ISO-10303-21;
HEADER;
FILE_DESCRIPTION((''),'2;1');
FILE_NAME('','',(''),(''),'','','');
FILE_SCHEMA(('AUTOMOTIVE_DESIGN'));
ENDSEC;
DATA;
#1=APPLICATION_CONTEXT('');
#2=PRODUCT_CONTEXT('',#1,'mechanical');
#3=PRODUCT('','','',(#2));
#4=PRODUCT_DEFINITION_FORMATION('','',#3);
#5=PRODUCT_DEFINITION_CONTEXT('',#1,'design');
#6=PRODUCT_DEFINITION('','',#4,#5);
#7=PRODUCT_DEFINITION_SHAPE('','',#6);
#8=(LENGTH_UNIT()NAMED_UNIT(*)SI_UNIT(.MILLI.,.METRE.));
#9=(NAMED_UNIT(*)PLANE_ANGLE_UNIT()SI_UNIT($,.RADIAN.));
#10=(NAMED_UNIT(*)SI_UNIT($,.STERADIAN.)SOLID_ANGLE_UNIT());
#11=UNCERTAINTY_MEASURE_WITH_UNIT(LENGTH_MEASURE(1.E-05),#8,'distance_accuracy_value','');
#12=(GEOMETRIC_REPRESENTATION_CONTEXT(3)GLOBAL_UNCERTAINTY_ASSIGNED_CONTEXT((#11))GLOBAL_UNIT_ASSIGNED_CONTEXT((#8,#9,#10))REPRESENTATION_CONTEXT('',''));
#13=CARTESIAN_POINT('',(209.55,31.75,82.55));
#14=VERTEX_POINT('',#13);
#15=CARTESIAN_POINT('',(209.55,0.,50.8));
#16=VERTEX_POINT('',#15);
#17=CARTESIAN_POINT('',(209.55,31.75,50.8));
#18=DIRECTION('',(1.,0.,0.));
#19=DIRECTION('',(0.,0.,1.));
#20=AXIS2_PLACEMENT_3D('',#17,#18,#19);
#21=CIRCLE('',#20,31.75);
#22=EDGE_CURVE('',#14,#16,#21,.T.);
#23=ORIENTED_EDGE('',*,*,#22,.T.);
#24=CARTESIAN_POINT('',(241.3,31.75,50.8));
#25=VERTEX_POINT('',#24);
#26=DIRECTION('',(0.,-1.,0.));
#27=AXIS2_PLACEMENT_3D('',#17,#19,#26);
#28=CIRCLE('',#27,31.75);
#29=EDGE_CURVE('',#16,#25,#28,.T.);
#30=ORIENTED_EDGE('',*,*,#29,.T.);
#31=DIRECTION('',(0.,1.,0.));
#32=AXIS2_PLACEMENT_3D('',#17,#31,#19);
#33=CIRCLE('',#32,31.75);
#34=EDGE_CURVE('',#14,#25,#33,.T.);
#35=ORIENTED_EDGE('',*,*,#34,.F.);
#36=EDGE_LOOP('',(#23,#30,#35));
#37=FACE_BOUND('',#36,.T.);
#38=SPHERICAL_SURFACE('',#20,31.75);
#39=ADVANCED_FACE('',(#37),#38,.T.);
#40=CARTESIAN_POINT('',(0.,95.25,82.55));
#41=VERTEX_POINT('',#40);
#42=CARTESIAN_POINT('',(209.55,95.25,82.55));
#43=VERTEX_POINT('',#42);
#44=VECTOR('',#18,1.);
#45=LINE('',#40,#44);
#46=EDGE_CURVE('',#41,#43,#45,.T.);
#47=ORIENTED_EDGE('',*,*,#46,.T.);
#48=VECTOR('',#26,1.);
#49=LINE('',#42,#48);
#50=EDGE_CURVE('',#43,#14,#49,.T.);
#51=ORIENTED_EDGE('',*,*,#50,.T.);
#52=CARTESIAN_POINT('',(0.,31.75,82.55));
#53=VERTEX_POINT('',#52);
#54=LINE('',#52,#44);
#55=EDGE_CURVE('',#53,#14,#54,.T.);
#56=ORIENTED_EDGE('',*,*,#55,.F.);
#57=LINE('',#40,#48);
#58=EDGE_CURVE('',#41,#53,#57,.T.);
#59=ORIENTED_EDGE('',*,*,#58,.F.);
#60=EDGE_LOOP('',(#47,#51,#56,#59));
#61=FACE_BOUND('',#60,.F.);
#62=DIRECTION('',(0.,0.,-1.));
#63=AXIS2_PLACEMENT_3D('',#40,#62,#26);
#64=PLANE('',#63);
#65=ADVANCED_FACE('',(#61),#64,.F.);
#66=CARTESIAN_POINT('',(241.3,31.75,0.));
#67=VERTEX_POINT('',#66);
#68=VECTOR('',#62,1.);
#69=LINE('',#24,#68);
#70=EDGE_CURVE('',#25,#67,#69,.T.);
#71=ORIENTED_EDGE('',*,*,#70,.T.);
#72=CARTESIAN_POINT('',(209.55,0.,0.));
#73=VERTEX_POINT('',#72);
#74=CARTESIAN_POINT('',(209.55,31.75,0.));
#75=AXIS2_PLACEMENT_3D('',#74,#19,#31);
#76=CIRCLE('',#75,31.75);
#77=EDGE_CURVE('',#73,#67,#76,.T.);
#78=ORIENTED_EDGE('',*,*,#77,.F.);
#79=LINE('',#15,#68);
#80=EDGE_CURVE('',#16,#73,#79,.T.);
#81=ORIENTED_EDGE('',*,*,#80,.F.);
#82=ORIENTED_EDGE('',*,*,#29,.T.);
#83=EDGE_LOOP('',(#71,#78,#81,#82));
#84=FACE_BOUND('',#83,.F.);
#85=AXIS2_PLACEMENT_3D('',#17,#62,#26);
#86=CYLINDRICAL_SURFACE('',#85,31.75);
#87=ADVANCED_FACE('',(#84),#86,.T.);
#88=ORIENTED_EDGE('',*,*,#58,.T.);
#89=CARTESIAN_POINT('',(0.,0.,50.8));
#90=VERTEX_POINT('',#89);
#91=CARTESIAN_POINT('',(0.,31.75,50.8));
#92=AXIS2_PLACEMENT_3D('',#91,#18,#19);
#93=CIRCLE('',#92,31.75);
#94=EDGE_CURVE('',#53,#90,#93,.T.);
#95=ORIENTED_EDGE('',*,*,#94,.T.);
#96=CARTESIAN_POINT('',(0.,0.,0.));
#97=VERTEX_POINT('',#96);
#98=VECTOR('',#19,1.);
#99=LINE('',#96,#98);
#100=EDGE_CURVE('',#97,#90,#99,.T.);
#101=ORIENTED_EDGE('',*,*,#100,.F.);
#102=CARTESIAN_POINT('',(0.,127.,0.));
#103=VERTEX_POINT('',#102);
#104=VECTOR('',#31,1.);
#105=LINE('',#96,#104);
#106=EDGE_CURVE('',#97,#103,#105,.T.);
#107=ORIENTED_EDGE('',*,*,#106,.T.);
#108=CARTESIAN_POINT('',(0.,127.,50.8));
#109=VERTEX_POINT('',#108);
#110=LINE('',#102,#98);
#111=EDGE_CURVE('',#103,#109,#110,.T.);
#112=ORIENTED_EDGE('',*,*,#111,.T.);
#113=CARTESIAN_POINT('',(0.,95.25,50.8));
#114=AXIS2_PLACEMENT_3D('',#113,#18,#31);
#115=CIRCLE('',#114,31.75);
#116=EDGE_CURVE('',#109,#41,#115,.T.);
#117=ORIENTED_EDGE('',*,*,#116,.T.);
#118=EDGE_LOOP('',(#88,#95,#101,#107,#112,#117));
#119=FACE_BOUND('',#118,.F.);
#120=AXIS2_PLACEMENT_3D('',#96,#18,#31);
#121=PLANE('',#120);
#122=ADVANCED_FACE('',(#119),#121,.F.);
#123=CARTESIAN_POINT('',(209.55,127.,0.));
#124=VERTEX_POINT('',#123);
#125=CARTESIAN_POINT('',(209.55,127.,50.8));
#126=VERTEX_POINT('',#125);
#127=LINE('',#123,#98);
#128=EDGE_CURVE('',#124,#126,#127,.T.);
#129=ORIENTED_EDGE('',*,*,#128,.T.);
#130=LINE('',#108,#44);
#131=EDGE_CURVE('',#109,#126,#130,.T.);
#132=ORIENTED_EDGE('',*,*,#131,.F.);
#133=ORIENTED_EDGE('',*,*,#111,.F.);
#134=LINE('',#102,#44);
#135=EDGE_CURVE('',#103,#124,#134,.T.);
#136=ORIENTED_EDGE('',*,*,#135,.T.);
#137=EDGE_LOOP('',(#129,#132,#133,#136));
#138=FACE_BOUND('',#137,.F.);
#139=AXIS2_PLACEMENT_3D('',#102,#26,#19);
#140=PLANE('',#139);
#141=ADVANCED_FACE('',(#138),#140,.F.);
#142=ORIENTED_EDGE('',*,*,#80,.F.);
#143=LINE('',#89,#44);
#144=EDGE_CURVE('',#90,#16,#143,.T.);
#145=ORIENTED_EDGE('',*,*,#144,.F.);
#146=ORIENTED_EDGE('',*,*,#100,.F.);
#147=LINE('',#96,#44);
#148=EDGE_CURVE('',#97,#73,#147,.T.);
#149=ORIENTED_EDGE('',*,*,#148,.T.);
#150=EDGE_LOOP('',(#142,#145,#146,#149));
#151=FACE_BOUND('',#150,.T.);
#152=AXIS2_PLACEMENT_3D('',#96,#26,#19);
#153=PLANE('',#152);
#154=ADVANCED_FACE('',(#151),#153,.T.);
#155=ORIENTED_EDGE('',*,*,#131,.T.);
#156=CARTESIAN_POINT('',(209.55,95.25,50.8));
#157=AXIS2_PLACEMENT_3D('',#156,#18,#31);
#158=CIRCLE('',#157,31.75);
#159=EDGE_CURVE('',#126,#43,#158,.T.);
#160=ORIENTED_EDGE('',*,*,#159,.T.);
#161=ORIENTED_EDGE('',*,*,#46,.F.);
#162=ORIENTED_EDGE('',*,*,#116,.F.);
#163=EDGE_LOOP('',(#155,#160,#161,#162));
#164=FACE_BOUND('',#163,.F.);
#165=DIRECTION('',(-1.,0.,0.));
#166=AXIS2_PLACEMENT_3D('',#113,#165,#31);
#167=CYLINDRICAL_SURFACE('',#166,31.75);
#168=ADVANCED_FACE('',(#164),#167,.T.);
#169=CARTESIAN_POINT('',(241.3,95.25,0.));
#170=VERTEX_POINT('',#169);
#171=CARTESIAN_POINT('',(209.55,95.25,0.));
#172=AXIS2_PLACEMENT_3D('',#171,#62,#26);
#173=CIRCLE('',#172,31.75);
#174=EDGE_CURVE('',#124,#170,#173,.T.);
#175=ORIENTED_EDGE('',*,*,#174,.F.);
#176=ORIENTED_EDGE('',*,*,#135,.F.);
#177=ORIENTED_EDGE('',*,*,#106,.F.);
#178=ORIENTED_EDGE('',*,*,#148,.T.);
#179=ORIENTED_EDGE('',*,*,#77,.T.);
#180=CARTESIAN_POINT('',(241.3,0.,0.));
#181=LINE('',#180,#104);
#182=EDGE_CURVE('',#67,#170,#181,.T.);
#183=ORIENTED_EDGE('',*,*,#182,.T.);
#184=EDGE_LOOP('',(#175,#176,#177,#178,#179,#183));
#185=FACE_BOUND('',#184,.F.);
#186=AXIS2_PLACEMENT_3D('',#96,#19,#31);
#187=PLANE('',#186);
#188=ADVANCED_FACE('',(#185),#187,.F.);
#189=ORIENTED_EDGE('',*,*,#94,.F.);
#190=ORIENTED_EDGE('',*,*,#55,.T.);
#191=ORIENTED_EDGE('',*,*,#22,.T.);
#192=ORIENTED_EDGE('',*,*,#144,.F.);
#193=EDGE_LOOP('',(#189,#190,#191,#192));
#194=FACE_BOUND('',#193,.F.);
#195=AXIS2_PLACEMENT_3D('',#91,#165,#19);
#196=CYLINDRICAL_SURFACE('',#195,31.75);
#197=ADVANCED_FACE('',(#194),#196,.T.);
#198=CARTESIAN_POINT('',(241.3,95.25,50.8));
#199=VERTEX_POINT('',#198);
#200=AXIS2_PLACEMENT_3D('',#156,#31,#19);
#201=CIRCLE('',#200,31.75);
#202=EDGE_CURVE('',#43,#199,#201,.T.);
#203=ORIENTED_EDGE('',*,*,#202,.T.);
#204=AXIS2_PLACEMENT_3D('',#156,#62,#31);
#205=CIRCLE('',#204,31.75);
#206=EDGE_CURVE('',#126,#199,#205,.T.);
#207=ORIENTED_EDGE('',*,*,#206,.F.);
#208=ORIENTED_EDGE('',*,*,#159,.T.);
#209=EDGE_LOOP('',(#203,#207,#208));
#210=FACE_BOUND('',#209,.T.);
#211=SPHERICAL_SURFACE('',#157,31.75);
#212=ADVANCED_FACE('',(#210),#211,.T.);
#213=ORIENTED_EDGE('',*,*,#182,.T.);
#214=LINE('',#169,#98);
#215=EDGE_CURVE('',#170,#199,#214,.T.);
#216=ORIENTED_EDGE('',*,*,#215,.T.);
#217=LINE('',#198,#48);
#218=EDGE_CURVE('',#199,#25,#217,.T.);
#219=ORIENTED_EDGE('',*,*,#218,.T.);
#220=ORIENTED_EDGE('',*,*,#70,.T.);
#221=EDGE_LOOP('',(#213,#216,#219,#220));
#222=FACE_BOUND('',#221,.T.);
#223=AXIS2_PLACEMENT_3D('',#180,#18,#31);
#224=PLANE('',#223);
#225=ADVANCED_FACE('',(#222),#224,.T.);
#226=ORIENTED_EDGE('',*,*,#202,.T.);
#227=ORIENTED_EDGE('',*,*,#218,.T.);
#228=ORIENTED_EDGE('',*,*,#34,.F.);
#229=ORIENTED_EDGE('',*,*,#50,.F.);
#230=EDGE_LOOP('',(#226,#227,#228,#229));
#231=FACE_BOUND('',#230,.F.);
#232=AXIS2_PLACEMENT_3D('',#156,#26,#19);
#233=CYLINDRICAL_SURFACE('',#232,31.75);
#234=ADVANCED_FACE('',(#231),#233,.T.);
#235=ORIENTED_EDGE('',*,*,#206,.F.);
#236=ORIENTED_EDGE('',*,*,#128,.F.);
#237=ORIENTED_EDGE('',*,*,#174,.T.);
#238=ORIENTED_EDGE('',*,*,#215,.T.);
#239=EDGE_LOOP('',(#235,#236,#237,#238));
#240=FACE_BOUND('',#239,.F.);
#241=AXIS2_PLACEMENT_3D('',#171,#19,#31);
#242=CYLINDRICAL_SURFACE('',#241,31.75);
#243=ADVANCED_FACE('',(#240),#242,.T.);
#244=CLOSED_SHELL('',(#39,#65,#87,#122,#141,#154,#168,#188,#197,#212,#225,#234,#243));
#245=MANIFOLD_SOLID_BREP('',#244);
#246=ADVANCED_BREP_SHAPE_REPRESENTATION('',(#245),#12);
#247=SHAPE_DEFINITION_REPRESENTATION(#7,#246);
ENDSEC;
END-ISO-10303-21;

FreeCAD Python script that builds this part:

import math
import FreeCAD as App
import Part
import Sketcher

V = App.Vector
Q = App.Units.Quantity


def edges_at(feature, points):
    """Names of the edges that pass closest to the given points."""
    edges = feature.Shape.Edges
    near = lambda p: min(range(len(edges)), key=lambda i: edges[i].distToShape(Part.Vertex(*p))[0])
    return sorted({f"Edge{near(p) + 1}" for p in points})

doc = App.newDocument("Part")
body = doc.addObject("PartDesign::Body", "Body")

sketch1 = body.newObject("Sketcher::SketchObject", "Sketch")
sketch1.AttachmentSupport = (doc.getObject("YZ_Plane"), [""])
sketch1.MapMode = "FlatFace"
sketch1.addGeometry(Part.LineSegment(V(0, 50.8, 0), V(0, 0, 0)), False)
sketch1.addGeometry(Part.LineSegment(V(0, 0, 0), V(127, 0, 0)), False)
sketch1.addGeometry(Part.LineSegment(V(127, 0, 0), V(127, 50.8, 0)), False)
sketch1.addGeometry(Part.ArcOfCircle(Part.Circle(V(95.25, 50.8, 0), V(0, 0, 1), 31.75), math.radians(0), math.radians(90)), False)
sketch1.addGeometry(Part.LineSegment(V(95.25, 82.55, 0), V(31.75, 82.55, 0)), False)
sketch1.addGeometry(Part.ArcOfCircle(Part.Circle(V(31.75, 50.8, 0), V(0, 0, 1), 31.75), math.radians(90), math.radians(180)), False)
sketch1.addConstraint(Sketcher.Constraint("Coincident", 0, 2, 1, 1))
sketch1.addConstraint(Sketcher.Constraint("Coincident", 1, 2, 2, 1))
sketch1.addConstraint(Sketcher.Constraint("Tangent", 2, 2, 3, 1))
sketch1.addConstraint(Sketcher.Constraint("Tangent", 3, 2, 4, 1))
sketch1.addConstraint(Sketcher.Constraint("Tangent", 4, 2, 5, 1))
sketch1.addConstraint(Sketcher.Constraint("Tangent", 5, 2, 0, 1))
sketch1.addConstraint(Sketcher.Constraint("Vertical", 0))
sketch1.addConstraint(Sketcher.Constraint("Horizontal", 1))
sketch1.addConstraint(Sketcher.Constraint("Vertical", 2))
sketch1.addConstraint(Sketcher.Constraint("Horizontal", 4))
sketch1.addConstraint(Sketcher.Constraint("Coincident", 0, 2, -1, 1))
sketch1.addConstraint(Sketcher.Constraint("Equal", 3, 5))
sketch1.addConstraint(Sketcher.Constraint("DistanceX", 1, 1, 1, 2, Q("5 in")))
sketch1.addConstraint(Sketcher.Constraint("Radius", 3, Q("1.25 in")))
sketch1.addConstraint(Sketcher.Constraint("DistanceY", 0, 2, 0, 1, Q("2 in")))
pad1 = body.newObject("PartDesign::Pad", "Pad")
pad1.Profile = sketch1
pad1.Length = Q("9.5 in")
doc.recompute()

fillet = body.newObject("PartDesign::Fillet", "Fillet")
fillet.Base = (pad1, edges_at(pad1, [
    (241.3, 117.701, 73.251),
    (241.3, 63.5, 82.55),
    (241.3, 9.299, 73.251),
    (241.3, 0, 25.4),
    (241.3, 127, 25.4),
]))
fillet.Radius = Q("1.25 in")

doc.recompute()
